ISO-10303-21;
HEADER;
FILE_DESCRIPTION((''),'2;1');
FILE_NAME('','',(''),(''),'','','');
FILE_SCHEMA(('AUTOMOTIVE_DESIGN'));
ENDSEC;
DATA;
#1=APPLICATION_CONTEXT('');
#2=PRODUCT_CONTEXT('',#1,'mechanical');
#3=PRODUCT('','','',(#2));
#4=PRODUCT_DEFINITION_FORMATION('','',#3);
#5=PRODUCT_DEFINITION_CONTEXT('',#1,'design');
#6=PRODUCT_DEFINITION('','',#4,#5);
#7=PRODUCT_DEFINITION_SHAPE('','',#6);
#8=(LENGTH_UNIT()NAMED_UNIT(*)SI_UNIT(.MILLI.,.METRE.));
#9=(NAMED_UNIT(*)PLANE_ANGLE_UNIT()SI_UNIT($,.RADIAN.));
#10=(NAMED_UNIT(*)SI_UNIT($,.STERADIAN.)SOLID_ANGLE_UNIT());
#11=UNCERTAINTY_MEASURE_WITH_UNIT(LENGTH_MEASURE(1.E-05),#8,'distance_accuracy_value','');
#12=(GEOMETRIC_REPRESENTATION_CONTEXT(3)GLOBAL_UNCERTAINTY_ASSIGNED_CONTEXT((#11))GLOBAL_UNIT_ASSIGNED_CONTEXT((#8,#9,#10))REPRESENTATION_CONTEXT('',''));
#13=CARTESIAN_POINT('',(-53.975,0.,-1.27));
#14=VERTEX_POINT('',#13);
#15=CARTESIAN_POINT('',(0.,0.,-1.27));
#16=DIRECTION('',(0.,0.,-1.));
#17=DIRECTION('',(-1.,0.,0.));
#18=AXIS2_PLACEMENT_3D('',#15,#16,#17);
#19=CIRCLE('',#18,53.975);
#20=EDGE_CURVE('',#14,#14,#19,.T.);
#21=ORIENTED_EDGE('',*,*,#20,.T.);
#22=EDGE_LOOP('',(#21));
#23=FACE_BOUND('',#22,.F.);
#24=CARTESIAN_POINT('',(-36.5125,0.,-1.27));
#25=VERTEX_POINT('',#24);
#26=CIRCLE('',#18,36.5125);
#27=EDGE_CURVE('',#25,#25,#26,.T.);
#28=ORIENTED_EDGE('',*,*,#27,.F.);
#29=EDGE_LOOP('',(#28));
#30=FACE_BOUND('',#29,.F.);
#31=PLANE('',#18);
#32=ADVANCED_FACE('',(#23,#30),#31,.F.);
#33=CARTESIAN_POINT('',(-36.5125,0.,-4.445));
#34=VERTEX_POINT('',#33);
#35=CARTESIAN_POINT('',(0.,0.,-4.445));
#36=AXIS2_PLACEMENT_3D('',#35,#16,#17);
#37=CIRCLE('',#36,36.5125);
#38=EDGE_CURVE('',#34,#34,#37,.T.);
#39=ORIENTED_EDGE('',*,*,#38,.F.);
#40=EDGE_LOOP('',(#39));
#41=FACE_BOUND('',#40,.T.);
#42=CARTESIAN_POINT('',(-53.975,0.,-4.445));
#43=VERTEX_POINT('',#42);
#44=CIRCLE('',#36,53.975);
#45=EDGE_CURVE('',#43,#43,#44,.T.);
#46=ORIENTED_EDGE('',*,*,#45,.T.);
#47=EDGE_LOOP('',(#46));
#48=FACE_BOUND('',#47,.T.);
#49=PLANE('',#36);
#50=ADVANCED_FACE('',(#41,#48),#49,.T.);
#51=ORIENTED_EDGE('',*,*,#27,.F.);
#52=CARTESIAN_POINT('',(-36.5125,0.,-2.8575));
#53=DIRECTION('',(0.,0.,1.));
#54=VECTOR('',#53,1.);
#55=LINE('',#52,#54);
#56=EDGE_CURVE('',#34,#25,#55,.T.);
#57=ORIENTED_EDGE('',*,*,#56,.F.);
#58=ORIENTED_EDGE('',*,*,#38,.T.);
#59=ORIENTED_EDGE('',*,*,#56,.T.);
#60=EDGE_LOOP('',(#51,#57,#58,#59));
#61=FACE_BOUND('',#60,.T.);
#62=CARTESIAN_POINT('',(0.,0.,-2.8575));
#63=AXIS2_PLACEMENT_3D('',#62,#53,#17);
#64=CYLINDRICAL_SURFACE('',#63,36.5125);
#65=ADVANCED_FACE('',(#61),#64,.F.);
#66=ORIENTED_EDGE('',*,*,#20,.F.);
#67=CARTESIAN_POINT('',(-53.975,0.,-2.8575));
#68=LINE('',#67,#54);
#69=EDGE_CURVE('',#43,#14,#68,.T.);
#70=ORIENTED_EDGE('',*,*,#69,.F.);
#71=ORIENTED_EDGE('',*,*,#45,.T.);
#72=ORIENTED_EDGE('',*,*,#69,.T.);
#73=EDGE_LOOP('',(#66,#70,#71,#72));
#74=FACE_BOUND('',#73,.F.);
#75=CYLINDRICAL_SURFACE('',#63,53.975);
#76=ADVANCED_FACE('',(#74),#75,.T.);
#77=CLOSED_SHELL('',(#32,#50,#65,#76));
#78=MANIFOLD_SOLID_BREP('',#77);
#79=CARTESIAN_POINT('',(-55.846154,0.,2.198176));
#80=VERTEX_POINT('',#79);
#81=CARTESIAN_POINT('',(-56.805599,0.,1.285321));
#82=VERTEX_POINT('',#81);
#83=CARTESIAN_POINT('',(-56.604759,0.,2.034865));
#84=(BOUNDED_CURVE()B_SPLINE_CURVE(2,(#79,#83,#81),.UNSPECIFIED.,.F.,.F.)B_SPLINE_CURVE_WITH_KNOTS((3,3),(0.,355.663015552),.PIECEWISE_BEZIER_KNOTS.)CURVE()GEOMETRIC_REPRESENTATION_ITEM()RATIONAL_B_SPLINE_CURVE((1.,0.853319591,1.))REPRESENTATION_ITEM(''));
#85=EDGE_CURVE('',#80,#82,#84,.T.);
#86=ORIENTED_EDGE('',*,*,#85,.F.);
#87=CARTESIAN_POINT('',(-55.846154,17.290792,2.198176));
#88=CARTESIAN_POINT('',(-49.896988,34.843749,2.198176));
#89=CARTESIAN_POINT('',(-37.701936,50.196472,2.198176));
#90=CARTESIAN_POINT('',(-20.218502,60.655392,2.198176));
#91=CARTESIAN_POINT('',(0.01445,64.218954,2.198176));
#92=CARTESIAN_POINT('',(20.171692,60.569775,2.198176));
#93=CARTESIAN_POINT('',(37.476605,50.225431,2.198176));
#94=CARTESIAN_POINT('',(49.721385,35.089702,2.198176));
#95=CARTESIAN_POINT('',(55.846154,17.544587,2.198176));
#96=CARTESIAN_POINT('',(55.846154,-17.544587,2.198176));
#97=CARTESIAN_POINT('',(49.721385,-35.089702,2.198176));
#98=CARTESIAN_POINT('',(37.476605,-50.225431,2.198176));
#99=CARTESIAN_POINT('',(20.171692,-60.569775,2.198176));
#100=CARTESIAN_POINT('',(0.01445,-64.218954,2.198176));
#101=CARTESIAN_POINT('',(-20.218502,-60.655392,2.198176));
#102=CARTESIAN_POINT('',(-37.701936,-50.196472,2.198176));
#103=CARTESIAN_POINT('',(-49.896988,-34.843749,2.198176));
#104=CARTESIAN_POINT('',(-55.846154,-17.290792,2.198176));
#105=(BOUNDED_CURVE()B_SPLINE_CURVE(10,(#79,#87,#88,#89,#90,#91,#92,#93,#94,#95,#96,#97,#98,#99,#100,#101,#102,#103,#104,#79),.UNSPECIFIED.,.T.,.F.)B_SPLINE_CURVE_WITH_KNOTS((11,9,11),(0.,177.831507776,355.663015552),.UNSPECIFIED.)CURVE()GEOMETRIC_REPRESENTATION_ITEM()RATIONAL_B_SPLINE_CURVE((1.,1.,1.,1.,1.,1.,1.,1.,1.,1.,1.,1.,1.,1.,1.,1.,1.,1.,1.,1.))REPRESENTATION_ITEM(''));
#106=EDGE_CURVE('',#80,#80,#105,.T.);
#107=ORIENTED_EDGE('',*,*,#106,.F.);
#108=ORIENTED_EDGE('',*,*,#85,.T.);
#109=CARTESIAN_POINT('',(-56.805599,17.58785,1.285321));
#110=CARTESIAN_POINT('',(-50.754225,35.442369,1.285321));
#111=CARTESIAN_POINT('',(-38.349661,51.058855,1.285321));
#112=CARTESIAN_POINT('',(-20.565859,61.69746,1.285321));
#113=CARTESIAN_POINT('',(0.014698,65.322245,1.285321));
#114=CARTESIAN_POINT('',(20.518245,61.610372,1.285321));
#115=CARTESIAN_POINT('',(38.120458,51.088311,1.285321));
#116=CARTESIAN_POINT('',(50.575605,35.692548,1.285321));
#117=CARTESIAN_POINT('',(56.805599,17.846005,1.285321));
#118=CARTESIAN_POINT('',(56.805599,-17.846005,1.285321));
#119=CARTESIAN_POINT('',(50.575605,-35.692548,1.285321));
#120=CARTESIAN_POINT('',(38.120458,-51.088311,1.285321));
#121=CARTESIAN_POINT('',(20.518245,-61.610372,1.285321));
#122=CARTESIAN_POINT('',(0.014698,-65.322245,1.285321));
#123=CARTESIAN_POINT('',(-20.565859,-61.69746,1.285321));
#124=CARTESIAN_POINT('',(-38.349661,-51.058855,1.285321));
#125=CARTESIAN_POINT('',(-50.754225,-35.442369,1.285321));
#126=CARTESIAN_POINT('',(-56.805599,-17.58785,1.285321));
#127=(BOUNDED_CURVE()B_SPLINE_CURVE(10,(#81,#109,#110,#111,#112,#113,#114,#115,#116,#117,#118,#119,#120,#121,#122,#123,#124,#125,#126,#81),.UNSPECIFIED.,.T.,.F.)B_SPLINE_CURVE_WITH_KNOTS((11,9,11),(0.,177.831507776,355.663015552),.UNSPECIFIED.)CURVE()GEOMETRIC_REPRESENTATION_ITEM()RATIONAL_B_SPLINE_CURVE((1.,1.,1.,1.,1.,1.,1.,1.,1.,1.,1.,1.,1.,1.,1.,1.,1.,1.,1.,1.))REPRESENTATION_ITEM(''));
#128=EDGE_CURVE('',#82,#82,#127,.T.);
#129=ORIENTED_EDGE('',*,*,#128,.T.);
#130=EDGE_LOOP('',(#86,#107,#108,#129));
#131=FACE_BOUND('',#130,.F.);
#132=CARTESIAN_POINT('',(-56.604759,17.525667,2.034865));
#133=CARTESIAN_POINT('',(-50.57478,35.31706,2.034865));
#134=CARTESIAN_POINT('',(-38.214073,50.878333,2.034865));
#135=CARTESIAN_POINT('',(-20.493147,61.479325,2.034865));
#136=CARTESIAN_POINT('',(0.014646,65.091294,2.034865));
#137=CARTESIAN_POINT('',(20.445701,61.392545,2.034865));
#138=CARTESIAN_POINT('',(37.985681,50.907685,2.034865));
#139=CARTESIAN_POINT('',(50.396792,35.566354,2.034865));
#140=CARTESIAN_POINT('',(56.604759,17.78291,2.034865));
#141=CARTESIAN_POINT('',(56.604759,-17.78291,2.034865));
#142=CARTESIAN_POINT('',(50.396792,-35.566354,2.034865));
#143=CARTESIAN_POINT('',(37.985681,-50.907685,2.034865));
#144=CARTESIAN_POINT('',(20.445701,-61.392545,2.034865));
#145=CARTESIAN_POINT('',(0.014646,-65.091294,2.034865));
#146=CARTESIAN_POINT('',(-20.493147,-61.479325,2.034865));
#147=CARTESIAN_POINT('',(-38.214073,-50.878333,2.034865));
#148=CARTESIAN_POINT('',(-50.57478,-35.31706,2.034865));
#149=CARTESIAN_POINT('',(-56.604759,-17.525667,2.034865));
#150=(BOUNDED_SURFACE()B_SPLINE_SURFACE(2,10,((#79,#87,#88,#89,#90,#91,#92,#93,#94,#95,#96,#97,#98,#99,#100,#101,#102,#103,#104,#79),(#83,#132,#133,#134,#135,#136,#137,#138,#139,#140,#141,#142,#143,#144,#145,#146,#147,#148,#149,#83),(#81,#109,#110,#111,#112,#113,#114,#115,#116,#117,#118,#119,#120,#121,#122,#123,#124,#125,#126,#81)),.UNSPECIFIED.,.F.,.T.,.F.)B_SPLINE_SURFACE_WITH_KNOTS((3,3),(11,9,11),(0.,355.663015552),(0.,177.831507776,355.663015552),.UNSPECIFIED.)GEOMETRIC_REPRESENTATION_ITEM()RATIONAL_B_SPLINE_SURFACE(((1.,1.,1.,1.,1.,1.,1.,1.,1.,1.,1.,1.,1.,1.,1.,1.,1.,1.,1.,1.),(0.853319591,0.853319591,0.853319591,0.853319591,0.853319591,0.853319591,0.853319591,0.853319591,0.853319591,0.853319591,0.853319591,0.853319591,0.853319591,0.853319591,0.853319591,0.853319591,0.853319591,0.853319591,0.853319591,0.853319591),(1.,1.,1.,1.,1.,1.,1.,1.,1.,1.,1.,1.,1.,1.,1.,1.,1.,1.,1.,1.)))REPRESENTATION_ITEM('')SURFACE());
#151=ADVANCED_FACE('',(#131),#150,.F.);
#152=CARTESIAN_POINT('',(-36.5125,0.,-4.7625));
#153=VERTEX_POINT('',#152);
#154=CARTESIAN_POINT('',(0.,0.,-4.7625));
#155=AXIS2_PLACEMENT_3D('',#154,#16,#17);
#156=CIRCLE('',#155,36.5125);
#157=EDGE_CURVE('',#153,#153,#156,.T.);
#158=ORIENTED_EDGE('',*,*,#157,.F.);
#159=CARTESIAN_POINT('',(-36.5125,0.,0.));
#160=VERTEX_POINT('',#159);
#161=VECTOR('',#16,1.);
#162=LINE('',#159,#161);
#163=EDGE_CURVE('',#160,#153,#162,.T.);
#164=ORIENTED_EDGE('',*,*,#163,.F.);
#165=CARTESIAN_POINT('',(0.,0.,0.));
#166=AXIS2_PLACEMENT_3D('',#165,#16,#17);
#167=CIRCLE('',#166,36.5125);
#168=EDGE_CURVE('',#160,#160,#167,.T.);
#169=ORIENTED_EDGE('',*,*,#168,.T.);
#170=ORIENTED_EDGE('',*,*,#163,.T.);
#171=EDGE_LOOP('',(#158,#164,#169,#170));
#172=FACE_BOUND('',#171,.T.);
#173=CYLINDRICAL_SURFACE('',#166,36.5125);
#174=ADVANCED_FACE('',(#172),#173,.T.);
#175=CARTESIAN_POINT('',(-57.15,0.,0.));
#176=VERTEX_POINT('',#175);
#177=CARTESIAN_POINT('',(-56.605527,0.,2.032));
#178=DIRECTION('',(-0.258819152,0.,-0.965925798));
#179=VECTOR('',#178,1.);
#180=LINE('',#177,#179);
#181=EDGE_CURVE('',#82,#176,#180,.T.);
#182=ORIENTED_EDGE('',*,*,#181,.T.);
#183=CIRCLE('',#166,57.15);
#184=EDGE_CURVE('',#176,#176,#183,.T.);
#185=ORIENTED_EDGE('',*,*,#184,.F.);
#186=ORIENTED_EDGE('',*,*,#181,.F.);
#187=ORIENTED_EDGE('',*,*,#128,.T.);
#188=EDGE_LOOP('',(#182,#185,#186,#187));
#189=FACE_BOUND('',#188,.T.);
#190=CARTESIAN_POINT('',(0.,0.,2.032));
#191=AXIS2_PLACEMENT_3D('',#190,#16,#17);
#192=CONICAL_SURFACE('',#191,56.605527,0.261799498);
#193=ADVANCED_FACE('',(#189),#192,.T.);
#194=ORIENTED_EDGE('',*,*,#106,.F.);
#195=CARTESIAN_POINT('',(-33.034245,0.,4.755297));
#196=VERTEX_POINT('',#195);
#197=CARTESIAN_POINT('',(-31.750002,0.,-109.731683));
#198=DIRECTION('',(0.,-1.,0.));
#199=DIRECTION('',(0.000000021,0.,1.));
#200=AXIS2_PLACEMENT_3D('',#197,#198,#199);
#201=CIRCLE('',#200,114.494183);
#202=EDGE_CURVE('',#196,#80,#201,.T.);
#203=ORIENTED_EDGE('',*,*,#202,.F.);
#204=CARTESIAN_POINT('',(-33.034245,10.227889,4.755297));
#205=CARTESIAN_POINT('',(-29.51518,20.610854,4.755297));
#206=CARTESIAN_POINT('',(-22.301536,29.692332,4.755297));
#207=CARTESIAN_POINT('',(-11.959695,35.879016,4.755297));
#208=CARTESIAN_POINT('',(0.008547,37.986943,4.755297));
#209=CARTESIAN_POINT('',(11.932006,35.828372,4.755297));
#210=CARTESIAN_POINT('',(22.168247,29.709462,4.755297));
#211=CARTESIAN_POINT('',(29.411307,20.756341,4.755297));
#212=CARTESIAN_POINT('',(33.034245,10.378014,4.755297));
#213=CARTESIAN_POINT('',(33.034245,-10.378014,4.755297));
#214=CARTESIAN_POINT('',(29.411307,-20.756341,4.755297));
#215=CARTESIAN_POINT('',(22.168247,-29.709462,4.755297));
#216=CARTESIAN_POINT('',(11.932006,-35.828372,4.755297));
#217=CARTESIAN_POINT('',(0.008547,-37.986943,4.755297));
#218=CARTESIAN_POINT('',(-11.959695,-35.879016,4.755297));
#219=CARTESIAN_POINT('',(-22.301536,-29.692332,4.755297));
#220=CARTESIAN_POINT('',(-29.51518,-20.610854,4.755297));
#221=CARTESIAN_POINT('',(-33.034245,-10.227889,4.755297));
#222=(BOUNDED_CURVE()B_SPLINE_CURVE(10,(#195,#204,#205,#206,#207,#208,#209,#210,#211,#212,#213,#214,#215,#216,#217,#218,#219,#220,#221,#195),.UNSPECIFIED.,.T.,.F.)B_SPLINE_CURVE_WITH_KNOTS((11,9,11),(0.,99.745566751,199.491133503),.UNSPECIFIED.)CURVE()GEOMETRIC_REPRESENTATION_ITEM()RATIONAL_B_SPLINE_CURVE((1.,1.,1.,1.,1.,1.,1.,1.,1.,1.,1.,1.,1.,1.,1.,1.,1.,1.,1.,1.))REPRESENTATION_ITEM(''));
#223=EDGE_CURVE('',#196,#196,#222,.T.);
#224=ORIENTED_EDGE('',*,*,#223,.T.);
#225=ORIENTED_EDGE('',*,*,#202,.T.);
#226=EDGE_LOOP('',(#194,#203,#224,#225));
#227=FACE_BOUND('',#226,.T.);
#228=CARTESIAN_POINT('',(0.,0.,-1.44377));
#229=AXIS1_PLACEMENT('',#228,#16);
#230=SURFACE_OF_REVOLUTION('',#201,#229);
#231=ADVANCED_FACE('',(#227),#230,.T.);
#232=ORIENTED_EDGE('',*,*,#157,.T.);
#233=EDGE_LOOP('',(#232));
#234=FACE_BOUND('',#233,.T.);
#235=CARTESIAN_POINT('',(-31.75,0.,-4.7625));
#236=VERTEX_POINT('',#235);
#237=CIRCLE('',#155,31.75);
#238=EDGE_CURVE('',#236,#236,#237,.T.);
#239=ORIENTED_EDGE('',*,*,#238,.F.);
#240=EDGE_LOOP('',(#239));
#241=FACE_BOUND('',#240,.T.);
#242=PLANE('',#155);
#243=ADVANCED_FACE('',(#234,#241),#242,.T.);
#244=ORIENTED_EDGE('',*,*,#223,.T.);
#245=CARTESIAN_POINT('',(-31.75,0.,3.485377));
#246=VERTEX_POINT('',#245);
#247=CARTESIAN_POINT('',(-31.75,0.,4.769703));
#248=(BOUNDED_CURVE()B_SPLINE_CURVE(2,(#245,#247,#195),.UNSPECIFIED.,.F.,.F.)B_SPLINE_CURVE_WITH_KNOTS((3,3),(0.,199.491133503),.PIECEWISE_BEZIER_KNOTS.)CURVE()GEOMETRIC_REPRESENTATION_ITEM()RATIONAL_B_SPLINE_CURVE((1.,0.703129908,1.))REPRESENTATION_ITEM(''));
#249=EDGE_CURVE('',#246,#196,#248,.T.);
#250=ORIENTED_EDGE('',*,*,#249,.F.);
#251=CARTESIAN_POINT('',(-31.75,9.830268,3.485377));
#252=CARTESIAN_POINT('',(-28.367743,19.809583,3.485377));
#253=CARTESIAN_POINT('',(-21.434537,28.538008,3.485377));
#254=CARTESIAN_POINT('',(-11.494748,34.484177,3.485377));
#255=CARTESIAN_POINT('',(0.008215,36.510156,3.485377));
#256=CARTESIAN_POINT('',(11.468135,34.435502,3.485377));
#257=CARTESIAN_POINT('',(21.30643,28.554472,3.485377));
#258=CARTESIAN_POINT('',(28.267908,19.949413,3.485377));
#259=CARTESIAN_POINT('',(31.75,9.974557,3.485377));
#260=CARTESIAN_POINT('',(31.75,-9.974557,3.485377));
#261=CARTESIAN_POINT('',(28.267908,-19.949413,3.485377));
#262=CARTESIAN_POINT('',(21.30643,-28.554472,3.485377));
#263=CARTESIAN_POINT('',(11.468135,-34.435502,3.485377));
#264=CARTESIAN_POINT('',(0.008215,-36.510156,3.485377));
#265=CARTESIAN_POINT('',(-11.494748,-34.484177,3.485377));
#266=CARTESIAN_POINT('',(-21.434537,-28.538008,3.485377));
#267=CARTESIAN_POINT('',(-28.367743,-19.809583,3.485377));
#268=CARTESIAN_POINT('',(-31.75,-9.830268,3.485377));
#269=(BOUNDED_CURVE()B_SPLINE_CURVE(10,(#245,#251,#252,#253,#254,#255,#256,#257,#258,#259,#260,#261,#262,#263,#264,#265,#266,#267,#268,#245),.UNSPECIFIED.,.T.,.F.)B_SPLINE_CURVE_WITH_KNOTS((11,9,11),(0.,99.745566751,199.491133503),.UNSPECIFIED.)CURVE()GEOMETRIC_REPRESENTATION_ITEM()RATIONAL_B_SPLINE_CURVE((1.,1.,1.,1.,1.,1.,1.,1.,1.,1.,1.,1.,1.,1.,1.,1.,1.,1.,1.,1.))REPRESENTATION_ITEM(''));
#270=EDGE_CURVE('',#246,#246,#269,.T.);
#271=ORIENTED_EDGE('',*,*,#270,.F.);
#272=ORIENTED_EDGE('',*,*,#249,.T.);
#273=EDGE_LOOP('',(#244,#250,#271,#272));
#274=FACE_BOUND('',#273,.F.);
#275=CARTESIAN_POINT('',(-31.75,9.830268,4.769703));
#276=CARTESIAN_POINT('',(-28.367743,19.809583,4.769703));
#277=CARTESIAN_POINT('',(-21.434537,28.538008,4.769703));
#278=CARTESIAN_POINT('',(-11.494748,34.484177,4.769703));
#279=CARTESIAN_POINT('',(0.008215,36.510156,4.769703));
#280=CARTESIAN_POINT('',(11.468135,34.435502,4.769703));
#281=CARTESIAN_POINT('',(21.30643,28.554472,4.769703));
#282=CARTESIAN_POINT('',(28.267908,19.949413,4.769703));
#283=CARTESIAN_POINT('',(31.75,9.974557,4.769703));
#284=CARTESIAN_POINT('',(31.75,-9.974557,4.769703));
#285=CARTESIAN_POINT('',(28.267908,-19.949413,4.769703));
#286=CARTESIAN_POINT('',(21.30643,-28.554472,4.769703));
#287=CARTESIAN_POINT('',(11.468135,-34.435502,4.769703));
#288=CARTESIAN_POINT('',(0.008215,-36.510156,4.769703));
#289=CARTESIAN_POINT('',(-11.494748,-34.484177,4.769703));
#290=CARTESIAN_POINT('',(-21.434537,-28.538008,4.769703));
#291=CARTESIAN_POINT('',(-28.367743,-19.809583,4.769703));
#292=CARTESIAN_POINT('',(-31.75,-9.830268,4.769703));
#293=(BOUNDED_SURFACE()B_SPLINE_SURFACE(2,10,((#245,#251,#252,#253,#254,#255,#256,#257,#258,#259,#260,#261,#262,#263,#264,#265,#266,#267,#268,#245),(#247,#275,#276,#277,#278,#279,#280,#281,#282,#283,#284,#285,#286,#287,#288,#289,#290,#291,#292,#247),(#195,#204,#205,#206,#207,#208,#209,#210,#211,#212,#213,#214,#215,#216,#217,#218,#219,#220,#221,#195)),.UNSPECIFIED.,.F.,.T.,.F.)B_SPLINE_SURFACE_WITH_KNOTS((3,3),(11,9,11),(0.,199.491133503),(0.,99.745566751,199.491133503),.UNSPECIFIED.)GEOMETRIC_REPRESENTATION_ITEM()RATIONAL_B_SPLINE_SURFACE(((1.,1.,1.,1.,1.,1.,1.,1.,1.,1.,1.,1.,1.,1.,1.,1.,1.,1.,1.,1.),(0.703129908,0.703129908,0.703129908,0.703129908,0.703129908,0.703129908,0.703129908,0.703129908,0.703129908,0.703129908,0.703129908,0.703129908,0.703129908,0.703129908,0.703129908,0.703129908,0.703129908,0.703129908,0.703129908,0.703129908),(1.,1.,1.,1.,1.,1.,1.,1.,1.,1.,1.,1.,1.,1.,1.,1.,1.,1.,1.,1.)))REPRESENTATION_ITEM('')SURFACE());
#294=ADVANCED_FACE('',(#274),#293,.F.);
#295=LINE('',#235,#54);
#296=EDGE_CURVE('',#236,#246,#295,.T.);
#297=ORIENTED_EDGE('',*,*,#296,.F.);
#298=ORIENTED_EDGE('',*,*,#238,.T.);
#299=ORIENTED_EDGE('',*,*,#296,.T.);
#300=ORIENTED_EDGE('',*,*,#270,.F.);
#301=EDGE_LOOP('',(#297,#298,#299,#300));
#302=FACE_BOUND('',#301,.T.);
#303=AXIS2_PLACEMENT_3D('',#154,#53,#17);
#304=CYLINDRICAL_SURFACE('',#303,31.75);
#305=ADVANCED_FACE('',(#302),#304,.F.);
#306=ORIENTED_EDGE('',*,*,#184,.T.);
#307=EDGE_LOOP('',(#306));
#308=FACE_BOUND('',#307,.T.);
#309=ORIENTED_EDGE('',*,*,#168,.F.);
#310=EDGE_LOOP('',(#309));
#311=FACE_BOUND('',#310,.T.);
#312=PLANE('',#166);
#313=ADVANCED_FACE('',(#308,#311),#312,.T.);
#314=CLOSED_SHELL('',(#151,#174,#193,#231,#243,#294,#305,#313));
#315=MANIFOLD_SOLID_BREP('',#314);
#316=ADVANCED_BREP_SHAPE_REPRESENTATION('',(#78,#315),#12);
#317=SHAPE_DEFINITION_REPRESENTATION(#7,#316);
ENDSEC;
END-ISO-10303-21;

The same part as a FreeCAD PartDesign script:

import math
import FreeCAD as App
import Part
import Sketcher

V = App.Vector
Q = App.Units.Quantity


def edges_at(feature, points):
    """Names of the edges that pass closest to the given points."""
    edges = feature.Shape.Edges
    near = lambda p: min(range(len(edges)), key=lambda i: edges[i].distToShape(Part.Vertex(*p))[0])
    return sorted({f"Edge{near(p) + 1}" for p in points})

doc = App.newDocument("Part")
body = doc.addObject("PartDesign::Body", "Body")

# Sketch on XZ plane
sketch1 = body.newObject("Sketcher::SketchObject", "Sketch")
sketch1.AttachmentSupport = (doc.getObject("XZ_Plane"), [""])
sketch1.MapMode = "FlatFace"
sketch1.addGeometry(Part.LineSegment(V(-31.8, -4.8, 0), V(-31.8, 4.8, 0)), False)
sketch1.addGeometry(Part.ArcOfCircle(Part.Circle(V(-31.8, -109.7, 0), V(0, 0, 1), 114.5), math.radians(90), math.radians(102.54)), False)
sketch1.addGeometry(Part.LineSegment(V(-56.6, 2, 0), V(-57.1, 0, 0)), False)
sketch1.addGeometry(Part.LineSegment(V(-57.1, 0, 0), V(-36.5, 0, 0)), False)
sketch1.addGeometry(Part.LineSegment(V(-36.5, 0, 0), V(-36.5, -4.8, 0)), False)
sketch1.addGeometry(Part.LineSegment(V(-36.5, -4.8, 0), V(-31.8, -4.8, 0)), False)
sketch1.addConstraint(Sketcher.Constraint("Coincident", 0, 2, 1, 1))
sketch1.addConstraint(Sketcher.Constraint("Coincident", 1, 2, 2, 1))
sketch1.addConstraint(Sketcher.Constraint("Coincident", 2, 2, 3, 1))
sketch1.addConstraint(Sketcher.Constraint("Coincident", 3, 2, 4, 1))
sketch1.addConstraint(Sketcher.Constraint("Coincident", 4, 2, 5, 1))
sketch1.addConstraint(Sketcher.Constraint("Coincident", 5, 2, 0, 1))
sketch1.addConstraint(Sketcher.Constraint("Vertical", 0))
sketch1.addConstraint(Sketcher.Constraint("Horizontal", 3))
sketch1.addConstraint(Sketcher.Constraint("Vertical", 4))
sketch1.addConstraint(Sketcher.Constraint("Horizontal", 5))
sketch1.addConstraint(Sketcher.Constraint("PointOnObject", 2, 2, -1))
sketch1.addConstraint(Sketcher.Constraint("Equal", 5, 4))
sketch1.addConstraint(Sketcher.Constraint("Angle", 2, Q("-105.000006 deg")))
sketch1.addConstraint(Sketcher.Constraint("DistanceX", 2, 2, 0, 2, Q("1 in")))
sketch1.addConstraint(Sketcher.Constraint("DistanceX", 2, 2, 1, 3, Q("0.9999999 in")))
sketch1.addConstraint(Sketcher.Constraint("DistanceX", 3, 1, 3, 2, Q("0.8125 in")))
sketch1.addConstraint(Sketcher.Constraint("DistanceY", 0, 1, 0, 2, Q("0.375 in")))
sketch1.addConstraint(Sketcher.Constraint("DistanceX", 1, 3, -1, 1, Q("1.2500001 in")))
sketch1.addConstraint(Sketcher.Constraint("Radius", 1, Q("114.494183 mm")))
revolution = body.newObject("PartDesign::Revolution", "Revolution")
revolution.Profile = sketch1
revolution.ReferenceAxis = (sketch1, ["V_Axis"])
revolution.Angle = 360
doc.recompute()

fillet = body.newObject("PartDesign::Fillet", "Fillet")
fillet.Base = (revolution, edges_at(revolution, [(56.606, 0, 2.032), (31.75, 0, 4.763)]))
fillet.Radius = Q("0.05 in")
body2 = doc.addObject("PartDesign::Body", "Body001")

# Sketch on XZ plane
sketch2 = body2.newObject("Sketcher::SketchObject", "Sketch001")
sketch2.AttachmentSupport = (doc.getObject("XZ_Plane001"), [""])
sketch2.MapMode = "FlatFace"
sketch2.addGeometry(Part.LineSegment(V(-54, -1.3, 0), V(-54, -4.4, 0)), False)
sketch2.addGeometry(Part.LineSegment(V(-54, -4.4, 0), V(-36.5, -4.4, 0)), False)
sketch2.addGeometry(Part.LineSegment(V(-36.5, -4.4, 0), V(-36.5, -1.3, 0)), False)
sketch2.addGeometry(Part.LineSegment(V(-36.5, -1.3, 0), V(-54, -1.3, 0)), False)
sketch2.addConstraint(Sketcher.Constraint("Coincident", 0, 2, 1, 1))
sketch2.addConstraint(Sketcher.Constraint("Coincident", 1, 2, 2, 1))
sketch2.addConstraint(Sketcher.Constraint("Coincident", 2, 2, 3, 1))
sketch2.addConstraint(Sketcher.Constraint("Coincident", 3, 2, 0, 1))
sketch2.addConstraint(Sketcher.Constraint("Vertical", 0))
sketch2.addConstraint(Sketcher.Constraint("Horizontal", 1))
sketch2.addConstraint(Sketcher.Constraint("Vertical", 2))
sketch2.addConstraint(Sketcher.Constraint("Horizontal", 3))
sketch2.addConstraint(Sketcher.Constraint("DistanceX", 1, 1, 1, 2, Q("0.6875 in")))
sketch2.addConstraint(Sketcher.Constraint("DistanceY", 0, 2, 0, 1, Q("0.125 in")))
sketch2.addConstraint(Sketcher.Constraint("DistanceY", 2, 2, -1, 1, Q("0.05 in")))
sketch2.addConstraint(Sketcher.Constraint("DistanceX", 0, 2, -1, 1, Q("2.125 in")))
revolution2 = body2.newObject("PartDesign::Revolution", "Revolution001")
revolution2.Profile = sketch2
revolution2.ReferenceAxis = (sketch2, ["V_Axis"])
revolution2.Angle = 360

doc.recompute()
